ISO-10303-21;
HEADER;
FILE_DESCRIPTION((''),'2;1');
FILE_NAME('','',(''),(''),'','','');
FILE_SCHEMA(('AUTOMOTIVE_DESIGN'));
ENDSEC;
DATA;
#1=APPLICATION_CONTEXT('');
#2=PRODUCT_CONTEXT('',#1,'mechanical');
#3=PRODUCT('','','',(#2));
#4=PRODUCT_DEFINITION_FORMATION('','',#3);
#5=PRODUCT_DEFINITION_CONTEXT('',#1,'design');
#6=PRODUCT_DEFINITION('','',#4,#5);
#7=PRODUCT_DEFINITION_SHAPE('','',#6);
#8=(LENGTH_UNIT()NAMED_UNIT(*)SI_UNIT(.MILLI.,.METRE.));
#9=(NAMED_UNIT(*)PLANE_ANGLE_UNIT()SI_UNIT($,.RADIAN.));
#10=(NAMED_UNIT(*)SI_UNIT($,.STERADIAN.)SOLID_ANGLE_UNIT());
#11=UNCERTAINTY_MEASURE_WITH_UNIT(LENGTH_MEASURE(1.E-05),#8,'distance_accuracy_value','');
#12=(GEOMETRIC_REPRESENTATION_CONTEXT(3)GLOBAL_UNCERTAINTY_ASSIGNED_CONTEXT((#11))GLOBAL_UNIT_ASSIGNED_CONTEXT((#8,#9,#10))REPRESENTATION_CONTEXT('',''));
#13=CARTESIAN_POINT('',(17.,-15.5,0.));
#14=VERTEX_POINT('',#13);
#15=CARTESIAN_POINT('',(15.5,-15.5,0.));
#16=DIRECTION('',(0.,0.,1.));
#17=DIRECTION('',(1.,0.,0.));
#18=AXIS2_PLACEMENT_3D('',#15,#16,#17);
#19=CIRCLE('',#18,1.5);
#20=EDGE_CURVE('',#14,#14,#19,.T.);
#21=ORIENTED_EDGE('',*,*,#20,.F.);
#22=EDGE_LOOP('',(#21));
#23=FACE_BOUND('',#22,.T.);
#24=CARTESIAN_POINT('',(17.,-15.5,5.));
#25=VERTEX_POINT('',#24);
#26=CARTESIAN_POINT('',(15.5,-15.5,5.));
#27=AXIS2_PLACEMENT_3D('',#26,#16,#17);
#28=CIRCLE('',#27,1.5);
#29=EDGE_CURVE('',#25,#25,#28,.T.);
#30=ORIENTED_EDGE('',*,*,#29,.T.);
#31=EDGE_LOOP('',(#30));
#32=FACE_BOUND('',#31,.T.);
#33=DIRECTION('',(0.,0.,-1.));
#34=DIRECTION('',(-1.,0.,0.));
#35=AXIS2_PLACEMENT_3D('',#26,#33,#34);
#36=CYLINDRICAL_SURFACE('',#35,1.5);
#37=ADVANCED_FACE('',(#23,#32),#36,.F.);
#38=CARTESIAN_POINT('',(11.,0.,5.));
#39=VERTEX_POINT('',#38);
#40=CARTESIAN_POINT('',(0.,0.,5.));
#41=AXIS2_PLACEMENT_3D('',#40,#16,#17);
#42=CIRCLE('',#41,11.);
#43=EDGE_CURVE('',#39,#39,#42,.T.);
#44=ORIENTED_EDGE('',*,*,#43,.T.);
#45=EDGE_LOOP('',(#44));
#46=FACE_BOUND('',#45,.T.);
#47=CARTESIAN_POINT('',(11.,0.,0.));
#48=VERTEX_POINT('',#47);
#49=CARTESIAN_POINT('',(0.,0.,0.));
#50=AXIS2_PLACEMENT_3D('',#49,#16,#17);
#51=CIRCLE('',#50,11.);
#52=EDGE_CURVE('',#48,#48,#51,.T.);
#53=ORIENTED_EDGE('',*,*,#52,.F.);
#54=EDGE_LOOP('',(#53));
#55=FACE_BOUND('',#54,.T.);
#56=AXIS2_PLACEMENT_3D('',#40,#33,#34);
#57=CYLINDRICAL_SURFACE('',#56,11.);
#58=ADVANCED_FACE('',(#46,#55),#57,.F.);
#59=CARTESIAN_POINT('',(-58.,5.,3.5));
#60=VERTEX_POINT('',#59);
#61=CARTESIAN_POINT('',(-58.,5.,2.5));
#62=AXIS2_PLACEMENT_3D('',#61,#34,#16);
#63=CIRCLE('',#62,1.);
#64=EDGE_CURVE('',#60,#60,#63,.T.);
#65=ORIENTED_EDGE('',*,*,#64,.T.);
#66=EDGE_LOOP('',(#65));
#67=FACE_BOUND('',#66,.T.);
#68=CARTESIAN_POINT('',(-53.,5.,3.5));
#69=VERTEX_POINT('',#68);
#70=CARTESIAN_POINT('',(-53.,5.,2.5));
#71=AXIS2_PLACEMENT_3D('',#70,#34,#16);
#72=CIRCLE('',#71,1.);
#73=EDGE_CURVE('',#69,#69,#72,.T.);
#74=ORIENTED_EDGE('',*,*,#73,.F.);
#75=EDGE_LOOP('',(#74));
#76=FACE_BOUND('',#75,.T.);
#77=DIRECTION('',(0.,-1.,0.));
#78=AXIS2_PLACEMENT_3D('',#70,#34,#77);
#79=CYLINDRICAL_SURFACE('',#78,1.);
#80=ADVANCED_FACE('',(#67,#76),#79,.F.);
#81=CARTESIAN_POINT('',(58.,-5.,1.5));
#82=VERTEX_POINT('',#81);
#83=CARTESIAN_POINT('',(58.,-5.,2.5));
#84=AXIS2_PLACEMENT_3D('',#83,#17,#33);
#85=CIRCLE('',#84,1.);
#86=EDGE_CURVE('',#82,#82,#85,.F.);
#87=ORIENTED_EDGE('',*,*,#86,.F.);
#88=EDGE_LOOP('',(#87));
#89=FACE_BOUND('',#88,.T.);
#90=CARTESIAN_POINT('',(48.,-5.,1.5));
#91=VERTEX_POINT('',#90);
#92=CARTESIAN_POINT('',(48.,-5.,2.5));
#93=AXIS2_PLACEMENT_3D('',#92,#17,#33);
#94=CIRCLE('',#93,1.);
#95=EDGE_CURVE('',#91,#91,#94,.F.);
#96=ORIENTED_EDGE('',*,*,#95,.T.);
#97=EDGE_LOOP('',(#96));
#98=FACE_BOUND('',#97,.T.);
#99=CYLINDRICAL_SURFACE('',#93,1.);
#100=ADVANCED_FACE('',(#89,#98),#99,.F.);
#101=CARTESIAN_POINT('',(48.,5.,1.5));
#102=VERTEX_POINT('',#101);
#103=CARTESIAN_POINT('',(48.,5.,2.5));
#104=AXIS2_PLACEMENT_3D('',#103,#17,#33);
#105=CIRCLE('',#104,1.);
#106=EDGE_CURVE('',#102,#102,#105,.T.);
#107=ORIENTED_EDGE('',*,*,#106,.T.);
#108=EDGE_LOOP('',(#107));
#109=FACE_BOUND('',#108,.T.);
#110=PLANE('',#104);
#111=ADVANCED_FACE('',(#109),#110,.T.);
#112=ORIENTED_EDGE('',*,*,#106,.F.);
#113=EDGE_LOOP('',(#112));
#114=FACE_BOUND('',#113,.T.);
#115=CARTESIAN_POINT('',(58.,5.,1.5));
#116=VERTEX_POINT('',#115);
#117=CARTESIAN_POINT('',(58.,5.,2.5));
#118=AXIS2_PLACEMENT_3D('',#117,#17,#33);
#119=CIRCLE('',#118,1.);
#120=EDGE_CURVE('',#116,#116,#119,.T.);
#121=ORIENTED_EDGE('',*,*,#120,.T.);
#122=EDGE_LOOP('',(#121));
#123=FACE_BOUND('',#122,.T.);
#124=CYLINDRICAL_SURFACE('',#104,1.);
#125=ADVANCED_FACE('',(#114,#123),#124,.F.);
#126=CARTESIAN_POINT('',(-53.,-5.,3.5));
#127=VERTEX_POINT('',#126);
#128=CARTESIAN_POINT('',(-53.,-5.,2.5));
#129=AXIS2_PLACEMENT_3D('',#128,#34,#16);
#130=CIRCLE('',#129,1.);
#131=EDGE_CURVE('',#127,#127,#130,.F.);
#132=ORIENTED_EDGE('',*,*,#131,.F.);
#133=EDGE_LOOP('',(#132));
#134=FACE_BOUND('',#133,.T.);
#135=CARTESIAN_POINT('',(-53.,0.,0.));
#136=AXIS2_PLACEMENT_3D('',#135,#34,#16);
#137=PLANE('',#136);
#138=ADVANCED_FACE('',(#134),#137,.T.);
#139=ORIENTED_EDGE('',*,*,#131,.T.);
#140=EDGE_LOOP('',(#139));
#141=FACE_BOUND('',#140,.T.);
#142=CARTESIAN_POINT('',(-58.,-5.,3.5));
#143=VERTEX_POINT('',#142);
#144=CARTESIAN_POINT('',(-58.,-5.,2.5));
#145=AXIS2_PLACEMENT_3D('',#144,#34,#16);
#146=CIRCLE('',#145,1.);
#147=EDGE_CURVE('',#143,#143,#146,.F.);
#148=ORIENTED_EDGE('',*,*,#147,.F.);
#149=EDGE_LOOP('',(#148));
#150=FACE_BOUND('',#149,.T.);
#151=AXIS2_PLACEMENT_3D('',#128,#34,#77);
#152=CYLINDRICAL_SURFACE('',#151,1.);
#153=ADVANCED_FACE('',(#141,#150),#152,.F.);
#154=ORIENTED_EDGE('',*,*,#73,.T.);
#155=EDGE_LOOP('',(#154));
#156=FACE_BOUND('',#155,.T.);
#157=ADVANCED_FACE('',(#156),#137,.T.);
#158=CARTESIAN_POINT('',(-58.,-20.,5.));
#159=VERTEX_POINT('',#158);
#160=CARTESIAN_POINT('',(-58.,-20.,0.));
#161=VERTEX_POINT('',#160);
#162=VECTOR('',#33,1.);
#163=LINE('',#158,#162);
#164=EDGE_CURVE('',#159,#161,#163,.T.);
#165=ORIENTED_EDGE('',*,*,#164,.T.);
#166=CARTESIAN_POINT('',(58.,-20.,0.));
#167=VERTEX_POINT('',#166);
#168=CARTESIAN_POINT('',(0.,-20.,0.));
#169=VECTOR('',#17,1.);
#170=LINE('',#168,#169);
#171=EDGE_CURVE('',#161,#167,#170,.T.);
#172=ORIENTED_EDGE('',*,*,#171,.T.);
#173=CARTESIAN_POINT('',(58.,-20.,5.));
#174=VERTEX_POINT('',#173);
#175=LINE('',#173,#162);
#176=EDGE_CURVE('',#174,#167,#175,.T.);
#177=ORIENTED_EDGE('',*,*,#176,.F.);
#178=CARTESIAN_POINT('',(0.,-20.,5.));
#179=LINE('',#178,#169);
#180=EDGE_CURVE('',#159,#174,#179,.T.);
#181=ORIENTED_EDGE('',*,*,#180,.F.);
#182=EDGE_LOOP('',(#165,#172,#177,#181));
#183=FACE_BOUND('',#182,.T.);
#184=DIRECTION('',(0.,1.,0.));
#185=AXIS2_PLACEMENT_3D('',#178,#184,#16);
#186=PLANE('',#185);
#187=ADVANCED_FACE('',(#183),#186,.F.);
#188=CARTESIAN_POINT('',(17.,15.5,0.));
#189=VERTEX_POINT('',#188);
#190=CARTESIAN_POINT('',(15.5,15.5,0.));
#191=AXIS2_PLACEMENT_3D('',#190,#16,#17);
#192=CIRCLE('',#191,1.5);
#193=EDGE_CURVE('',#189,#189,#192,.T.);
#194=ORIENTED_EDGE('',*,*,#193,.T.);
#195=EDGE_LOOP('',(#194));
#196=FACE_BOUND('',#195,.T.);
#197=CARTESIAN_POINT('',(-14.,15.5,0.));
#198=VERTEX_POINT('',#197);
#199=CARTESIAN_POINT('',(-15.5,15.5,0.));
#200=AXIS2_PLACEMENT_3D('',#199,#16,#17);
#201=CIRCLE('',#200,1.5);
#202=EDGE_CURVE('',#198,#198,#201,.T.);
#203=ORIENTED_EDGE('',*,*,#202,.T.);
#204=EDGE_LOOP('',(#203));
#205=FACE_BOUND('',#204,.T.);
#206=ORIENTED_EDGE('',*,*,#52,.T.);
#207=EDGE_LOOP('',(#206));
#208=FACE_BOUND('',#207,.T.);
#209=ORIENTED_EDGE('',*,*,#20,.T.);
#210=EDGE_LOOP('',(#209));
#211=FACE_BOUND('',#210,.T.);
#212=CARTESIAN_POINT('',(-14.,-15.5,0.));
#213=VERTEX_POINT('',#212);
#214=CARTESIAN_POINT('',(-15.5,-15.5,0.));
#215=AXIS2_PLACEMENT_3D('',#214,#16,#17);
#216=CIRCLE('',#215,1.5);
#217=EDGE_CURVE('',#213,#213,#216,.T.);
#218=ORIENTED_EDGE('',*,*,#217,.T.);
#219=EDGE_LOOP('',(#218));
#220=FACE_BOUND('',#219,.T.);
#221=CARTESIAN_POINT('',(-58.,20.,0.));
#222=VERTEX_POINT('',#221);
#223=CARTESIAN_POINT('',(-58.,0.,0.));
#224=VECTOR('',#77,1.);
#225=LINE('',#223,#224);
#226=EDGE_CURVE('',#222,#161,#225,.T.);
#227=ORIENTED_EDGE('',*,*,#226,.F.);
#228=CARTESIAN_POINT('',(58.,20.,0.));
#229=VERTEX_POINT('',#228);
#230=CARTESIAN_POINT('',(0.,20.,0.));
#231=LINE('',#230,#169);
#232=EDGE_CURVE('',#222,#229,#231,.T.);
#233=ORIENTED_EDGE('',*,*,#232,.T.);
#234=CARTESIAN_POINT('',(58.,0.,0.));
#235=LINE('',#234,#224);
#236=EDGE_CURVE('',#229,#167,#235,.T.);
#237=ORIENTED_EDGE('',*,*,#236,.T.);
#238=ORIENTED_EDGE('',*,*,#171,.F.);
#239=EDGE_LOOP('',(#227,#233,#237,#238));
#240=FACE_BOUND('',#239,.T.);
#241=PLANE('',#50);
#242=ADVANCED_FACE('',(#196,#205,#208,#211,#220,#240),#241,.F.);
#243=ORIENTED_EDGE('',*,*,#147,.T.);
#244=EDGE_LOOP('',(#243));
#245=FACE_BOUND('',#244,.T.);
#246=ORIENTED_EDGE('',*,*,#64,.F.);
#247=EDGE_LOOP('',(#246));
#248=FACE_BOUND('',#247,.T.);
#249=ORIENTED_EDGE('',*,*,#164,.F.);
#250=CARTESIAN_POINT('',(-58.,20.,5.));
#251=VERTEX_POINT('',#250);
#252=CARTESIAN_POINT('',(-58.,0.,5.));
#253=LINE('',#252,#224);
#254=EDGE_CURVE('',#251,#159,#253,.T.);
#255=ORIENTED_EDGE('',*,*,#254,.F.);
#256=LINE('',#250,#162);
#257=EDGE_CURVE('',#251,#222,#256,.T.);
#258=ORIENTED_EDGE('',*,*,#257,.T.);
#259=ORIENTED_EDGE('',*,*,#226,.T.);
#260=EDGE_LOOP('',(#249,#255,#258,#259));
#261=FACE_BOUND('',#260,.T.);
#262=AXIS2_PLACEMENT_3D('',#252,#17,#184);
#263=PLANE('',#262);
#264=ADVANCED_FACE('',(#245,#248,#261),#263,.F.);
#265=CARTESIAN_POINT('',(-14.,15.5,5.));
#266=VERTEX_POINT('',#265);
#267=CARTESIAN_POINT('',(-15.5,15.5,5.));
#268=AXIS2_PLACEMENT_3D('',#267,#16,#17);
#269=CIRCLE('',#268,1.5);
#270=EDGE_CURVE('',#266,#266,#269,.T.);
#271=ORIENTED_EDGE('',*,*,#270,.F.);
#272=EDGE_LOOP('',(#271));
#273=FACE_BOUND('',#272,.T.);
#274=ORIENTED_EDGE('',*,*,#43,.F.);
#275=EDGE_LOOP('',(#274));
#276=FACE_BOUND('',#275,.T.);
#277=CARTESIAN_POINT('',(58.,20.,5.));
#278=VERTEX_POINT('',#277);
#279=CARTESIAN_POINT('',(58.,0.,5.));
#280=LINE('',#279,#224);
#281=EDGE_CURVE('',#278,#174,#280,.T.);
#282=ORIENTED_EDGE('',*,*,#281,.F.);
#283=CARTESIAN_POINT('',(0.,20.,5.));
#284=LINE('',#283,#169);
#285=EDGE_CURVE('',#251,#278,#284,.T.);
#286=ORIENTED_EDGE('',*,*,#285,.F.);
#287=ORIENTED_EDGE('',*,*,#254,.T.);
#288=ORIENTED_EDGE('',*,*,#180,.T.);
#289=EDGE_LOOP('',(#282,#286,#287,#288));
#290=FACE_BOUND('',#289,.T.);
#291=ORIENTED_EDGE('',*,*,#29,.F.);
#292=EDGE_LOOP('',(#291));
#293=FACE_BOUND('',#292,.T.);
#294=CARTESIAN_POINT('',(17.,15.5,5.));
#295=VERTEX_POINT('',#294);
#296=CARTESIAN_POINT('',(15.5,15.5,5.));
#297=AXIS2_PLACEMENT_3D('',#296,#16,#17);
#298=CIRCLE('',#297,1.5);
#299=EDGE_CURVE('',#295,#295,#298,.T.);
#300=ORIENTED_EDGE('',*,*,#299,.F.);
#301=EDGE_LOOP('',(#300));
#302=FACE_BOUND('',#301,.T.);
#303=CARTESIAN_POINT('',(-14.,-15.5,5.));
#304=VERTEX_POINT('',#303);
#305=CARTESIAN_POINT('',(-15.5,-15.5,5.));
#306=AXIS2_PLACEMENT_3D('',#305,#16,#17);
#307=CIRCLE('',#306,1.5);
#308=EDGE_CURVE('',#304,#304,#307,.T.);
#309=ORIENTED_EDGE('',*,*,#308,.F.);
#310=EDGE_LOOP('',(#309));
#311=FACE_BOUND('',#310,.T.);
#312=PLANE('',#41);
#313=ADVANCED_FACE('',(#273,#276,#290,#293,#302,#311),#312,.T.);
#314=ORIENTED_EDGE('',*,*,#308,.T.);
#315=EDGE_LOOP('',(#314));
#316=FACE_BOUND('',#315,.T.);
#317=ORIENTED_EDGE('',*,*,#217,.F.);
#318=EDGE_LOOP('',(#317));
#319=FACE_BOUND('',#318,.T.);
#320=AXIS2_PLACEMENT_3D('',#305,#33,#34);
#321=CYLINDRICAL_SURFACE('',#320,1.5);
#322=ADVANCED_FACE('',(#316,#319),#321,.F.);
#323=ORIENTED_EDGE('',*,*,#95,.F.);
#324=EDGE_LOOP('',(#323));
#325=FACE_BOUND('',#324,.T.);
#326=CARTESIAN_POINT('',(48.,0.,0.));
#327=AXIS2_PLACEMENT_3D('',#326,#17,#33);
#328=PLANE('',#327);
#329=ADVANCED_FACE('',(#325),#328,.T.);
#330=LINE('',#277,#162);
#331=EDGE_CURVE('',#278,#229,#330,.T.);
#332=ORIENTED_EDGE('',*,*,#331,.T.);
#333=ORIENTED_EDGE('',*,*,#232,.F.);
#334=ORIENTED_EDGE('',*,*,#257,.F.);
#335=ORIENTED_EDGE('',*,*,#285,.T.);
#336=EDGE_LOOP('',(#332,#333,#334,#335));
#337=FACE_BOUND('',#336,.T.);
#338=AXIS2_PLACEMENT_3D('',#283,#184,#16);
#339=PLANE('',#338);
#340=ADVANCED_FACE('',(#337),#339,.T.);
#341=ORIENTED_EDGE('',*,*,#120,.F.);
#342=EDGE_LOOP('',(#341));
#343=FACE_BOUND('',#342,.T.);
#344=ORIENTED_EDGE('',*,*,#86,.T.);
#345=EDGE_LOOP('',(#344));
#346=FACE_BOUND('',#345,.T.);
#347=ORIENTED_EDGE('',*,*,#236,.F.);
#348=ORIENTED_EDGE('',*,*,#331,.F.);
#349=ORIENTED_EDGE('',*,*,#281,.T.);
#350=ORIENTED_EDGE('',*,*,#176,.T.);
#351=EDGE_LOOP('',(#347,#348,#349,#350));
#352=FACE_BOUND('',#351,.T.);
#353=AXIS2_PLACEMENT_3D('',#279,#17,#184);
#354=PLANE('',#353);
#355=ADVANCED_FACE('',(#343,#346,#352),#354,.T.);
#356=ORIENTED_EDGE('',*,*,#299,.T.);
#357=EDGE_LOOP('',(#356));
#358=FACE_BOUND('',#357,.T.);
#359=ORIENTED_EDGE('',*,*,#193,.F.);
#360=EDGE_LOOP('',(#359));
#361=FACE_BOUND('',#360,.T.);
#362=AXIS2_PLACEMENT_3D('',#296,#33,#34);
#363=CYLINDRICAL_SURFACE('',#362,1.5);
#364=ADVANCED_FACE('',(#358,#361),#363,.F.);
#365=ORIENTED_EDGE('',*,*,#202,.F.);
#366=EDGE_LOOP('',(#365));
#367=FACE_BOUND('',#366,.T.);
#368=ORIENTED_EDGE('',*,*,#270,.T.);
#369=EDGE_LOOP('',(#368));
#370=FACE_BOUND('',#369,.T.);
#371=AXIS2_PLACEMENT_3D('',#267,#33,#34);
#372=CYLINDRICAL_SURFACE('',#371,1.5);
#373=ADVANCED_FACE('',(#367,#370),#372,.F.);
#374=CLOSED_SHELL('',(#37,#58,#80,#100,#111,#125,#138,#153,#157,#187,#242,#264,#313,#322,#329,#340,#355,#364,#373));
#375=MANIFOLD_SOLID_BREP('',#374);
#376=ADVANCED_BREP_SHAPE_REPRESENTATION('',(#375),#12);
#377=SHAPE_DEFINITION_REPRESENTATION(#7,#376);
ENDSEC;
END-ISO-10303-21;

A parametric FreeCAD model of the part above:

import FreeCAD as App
import Part
import Sketcher
from FreeCAD import Vector
Q = App.Units.Quantity

doc = App.newDocument("Part")
body = doc.addObject("PartDesign::Body", "Body")

sketch1 = doc.addObject("Sketcher::SketchObject", "Sketch")
body.addObject(sketch1)
sketch1.AttachmentSupport = (doc.XY_Plane, [""])
sketch1.MapMode = "FlatFace"
sketch1.addGeometry([
    Part.LineSegment(Vector(-58, 20, 0), Vector(-58, -20, 0)),
    Part.LineSegment(Vector(-58, -20, 0), Vector(58, -20, 0)),
    Part.LineSegment(Vector(58, -20, 0), Vector(58, 20, 0)),
    Part.LineSegment(Vector(58, 20, 0), Vector(-58, 20, 0)),
    Part.Circle(Vector(-15.5, -15.5, 0), Vector(0, 0, 1), 1.5),
    Part.Circle(Vector(15.5, -15.5, 0), Vector(0, 0, 1), 1.5),
    Part.Circle(Vector(-15.5, 15.5, 0), Vector(0, 0, 1), 1.5),
    Part.Circle(Vector(0, 0, 0), Vector(0, 0, 1), 11),
    Part.Circle(Vector(15.5, 15.5, 0), Vector(0, 0, 1), 1.5),
], False)
sketch1.addConstraint([
    Sketcher.Constraint("Coincident", 0, 2, 1, 1),
    Sketcher.Constraint("Coincident", 1, 2, 2, 1),
    Sketcher.Constraint("Coincident", 2, 2, 3, 1),
    Sketcher.Constraint("Coincident", 3, 2, 0, 1),
    Sketcher.Constraint("Vertical", 0),
    Sketcher.Constraint("Horizontal", 1),
    Sketcher.Constraint("Vertical", 2),
    Sketcher.Constraint("Horizontal", 3),
    Sketcher.Constraint("Coincident", 7, 3, -1, 1),
    Sketcher.Constraint("Equal", 4, 5),
    Sketcher.Constraint("Equal", 5, 6),
    Sketcher.Constraint("Equal", 6, 8),
    Sketcher.Constraint("Symmetric", 5, 3, 6, 3, -1, 1),
    Sketcher.Constraint("Symmetric", 4, 3, 8, 3, -1, 1),
    Sketcher.Constraint("Symmetric", 0, 2, 2, 2, -1, 1),
    Sketcher.Constraint("Symmetric", 4, 3, 5, 3, -2),
    Sketcher.Constraint("Diameter", 4, Q("3 mm")),
    Sketcher.Constraint("Diameter", 7, Q("22 mm")),
    Sketcher.Constraint("DistanceX", 1, 1, 1, 2, Q("116 mm")),
    Sketcher.Constraint("DistanceY", 0, 2, 0, 1, Q("40 mm")),
    Sketcher.Constraint("DistanceX", 4, 3, 5, 3, Q("31 mm")),
    Sketcher.Constraint("DistanceY", 4, 3, 6, 3, Q("31 mm")),
])
pad1 = doc.addObject("PartDesign::Pad", "Pad")
body.addObject(pad1)
pad1.Profile = sketch1
pad1.Length = 5

sketch2 = doc.addObject("Sketcher::SketchObject", "Sketch001")
body.addObject(sketch2)
sketch2.AttachmentSupport = (doc.YZ_Plane, [""])
sketch2.MapMode = "FlatFace"
sketch2.AttachmentOffset = App.Placement(Vector(0, 0, 58), App.Rotation())
sketch2.addGeometry([
    Part.Circle(Vector(-5, 2.5, 0), Vector(0, 0, 1), 1),
    Part.Circle(Vector(5, 2.5, 0), Vector(0, 0, 1), 1),
], False)
sketch2.addConstraint([
    Sketcher.Constraint("Equal", 0, 1),
    Sketcher.Constraint("Symmetric", 0, 3, 1, 3, -2),
    Sketcher.Constraint("Diameter", 0, Q("2 mm")),
    Sketcher.Constraint("DistanceX", 0, 3, -1, 1, Q("5 mm")),
    Sketcher.Constraint("DistanceY", -1, 1, 0, 3, Q("2.5 mm")),
])
pocket1 = doc.addObject("PartDesign::Pocket", "Pocket")
body.addObject(pocket1)
pocket1.Profile = sketch2
pocket1.Length = 10

sketch3 = doc.addObject("Sketcher::SketchObject", "Sketch002")
body.addObject(sketch3)
sketch3.AttachmentSupport = (doc.YZ_Plane, [""])
sketch3.MapMode = "FlatFace"
sketch3.AttachmentOffset = App.Placement(Vector(0, 0, -58), App.Rotation())
sketch3.addGeometry([
    Part.Circle(Vector(5, 2.5, 0), Vector(0, 0, 1), 1),
    Part.Circle(Vector(-5, 2.5, 0), Vector(0, 0, 1), 1),
], False)
sketch3.addConstraint([
    Sketcher.Constraint("Equal", 0, 1),
    Sketcher.Constraint("Symmetric", 0, 3, 1, 3, -2),
    Sketcher.Constraint("Diameter", 0, Q("2 mm")),
    Sketcher.Constraint("DistanceX", -1, 1, 0, 3, Q("5 mm")),
    Sketcher.Constraint("DistanceY", -1, 1, 0, 3, Q("2.5 mm")),
])
pocket2 = doc.addObject("PartDesign::Pocket", "Pocket001")
body.addObject(pocket2)
pocket2.Profile = sketch3
pocket2.Length = 5
pocket2.Reversed = True

doc.recompute()
